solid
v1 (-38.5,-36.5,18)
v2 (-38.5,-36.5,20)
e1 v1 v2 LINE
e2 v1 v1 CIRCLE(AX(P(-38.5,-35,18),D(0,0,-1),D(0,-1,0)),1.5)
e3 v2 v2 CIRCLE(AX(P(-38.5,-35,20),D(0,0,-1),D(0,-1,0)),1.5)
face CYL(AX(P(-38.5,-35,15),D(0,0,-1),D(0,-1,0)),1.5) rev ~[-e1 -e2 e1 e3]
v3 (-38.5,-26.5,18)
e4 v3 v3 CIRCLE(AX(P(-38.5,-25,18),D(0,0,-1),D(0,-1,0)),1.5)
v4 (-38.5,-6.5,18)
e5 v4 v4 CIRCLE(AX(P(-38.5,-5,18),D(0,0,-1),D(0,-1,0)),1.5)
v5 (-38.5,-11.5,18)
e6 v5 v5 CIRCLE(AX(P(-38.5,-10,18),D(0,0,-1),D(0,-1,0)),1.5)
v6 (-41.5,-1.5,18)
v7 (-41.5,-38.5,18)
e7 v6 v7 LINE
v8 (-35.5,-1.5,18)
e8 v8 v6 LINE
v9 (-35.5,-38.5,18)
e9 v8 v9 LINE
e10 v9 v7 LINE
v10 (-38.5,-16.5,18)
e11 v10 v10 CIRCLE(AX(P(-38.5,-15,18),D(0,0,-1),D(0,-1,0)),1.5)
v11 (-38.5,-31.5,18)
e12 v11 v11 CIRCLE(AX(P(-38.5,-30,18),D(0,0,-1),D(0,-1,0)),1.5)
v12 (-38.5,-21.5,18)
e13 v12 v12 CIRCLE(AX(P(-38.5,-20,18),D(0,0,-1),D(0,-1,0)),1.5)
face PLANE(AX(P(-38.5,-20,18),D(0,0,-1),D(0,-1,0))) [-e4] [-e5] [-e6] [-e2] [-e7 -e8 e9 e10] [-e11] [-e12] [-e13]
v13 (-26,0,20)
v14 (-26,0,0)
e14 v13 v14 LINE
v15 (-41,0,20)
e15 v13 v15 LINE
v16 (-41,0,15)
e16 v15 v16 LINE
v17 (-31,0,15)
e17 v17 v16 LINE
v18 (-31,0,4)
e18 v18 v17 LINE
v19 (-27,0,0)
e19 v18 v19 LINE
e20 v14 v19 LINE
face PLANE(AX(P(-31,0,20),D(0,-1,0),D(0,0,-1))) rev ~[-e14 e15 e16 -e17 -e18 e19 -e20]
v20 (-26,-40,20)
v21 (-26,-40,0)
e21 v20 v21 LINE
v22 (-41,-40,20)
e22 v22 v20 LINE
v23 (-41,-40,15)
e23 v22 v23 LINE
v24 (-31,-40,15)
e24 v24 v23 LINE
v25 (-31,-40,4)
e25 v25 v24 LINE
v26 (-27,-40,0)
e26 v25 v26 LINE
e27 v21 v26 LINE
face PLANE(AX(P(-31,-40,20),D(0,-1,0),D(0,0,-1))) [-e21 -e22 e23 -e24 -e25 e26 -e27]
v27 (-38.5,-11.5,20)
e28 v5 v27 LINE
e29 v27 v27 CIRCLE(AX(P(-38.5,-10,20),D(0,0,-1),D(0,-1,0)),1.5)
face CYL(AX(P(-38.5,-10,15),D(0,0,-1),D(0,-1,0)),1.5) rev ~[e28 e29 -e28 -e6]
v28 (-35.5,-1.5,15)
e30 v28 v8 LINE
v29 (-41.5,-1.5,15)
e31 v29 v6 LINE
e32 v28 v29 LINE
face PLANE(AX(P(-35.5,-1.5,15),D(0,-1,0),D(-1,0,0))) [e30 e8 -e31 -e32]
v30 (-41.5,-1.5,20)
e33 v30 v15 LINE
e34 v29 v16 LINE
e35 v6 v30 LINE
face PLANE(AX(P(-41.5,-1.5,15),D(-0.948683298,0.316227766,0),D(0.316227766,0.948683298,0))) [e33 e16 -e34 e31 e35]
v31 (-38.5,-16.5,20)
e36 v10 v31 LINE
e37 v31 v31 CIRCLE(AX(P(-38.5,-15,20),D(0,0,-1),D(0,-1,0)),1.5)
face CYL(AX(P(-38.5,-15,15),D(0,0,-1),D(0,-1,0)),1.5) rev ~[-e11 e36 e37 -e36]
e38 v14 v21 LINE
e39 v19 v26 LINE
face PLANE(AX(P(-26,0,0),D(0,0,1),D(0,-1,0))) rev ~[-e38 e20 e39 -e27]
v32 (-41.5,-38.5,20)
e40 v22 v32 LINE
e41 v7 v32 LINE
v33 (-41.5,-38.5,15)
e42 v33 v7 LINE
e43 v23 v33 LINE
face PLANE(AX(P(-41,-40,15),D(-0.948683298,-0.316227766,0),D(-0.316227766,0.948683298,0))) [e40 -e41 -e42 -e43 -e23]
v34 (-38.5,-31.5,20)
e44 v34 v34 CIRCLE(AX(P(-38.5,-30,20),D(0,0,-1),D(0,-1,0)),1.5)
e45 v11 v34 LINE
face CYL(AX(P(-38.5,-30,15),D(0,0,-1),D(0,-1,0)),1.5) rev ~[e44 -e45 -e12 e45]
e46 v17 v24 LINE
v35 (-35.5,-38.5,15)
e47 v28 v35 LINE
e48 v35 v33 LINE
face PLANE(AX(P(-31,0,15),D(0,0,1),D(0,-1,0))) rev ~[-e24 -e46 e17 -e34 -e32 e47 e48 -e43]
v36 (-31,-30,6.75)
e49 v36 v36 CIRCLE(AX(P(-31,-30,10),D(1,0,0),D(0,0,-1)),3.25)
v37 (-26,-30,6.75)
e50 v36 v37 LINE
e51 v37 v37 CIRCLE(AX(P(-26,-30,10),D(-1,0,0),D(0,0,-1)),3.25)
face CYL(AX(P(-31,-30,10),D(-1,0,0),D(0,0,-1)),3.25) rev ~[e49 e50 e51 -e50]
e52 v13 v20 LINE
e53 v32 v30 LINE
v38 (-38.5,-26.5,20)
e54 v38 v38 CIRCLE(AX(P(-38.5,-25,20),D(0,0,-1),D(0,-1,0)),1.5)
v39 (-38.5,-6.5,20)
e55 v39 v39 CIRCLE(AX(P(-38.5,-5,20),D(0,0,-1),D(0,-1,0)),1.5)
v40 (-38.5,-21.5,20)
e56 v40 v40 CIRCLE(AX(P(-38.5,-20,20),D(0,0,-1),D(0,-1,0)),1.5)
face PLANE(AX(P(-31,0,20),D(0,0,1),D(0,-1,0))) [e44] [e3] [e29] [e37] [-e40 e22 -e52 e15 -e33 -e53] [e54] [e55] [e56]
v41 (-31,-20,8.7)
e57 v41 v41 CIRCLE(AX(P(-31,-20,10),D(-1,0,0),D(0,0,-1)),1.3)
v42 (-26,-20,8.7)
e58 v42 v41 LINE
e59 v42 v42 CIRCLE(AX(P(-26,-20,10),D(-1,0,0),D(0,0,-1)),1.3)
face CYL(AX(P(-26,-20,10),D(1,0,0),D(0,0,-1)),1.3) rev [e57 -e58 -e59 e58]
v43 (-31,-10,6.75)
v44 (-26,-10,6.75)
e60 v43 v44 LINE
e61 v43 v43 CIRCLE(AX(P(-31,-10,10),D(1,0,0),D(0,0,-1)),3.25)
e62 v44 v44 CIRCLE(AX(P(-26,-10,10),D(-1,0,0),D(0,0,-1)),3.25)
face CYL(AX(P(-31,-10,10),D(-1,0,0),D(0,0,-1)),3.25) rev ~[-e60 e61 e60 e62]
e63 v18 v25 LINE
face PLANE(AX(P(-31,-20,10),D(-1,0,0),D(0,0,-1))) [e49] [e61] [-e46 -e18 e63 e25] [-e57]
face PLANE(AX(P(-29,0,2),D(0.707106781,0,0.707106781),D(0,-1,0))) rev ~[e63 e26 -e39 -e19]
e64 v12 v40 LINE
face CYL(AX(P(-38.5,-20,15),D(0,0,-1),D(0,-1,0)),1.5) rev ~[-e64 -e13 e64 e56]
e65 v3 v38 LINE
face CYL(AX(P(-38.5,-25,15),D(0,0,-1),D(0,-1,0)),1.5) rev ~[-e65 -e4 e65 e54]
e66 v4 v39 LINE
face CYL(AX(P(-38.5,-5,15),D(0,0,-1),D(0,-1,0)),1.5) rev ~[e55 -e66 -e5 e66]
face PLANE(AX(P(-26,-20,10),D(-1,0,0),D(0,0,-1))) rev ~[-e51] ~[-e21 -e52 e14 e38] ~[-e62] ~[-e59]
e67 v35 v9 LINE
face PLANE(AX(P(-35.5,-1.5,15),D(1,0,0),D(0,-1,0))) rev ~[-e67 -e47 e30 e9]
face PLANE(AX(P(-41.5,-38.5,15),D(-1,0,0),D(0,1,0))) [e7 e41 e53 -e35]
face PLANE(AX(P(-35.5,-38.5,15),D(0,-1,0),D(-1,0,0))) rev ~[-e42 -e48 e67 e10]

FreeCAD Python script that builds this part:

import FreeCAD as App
import Part
import Sketcher
from FreeCAD import Vector


def edges_at(feature, points):
    """Names of the edges that pass closest to the given points."""
    edges = feature.Shape.Edges
    near = lambda p: min(range(len(edges)), key=lambda i: edges[i].distToShape(Part.Vertex(*p))[0])
    return sorted({f"Edge{near(p) + 1}" for p in points})


def add_polygon(sketch, points):
    """Adds a closed chain of lines whose ends are joined by coincident constraints."""
    first, n = sketch.GeometryCount, len(points)
    for a, b in zip(points, points[1:] + points[:1]):
        sketch.addGeometry(Part.LineSegment(App.Vector(*a, 0), App.Vector(*b, 0)), False)
    for i in range(n):
        sketch.addConstraint(Sketcher.Constraint("Coincident", first + i, 2, first + (i + 1) % n, 1))

doc = App.newDocument("Part")
params = doc.addObject("Spreadsheet::Sheet", "Params")
for row, (alias, value) in enumerate([
    ("sketch1_diameter", "5.5 mm"),
    ("sketch1_diameter2", "2.6 mm"),
    ("sketch1_width", "40 mm"),
    ("sketch1_height", "20 mm"),
    ("pad1_length", "5 mm"),
    ("sketch2_width", "40 mm"),
    ("sketch2_height", "5 mm"),
    ("pad2_length", "15 mm"),
    ("sketch3_diameter", "3 mm"),
    ("sketch4_width", "6 mm"),
    ("sketch4_height", "37 mm"),
    ("pocket2_length", "3 mm"),
    ("chamfer_size", "2 mm"),
    ("chamfer2_size", "4 mm"),
    ("chamfer3_size", "5 mm"),
    ("sketch5_height", "37 mm"),
    ("sketch5_height2", "30 mm"),
    ("pocket3_length", "5 mm"),
    ("sketch6_diameter", "6.5 mm"),
    ("pocket4_length", "7 mm"),
    ("sketch7_width", "2 mm"),
], start=1):
    params.set(f"A{row}", alias)
    params.set(f"B{row}", "=" + value)
    params.setAlias(f"B{row}", alias)

body = doc.addObject("PartDesign::Body", "Body")

sketch1 = body.newObject("Sketcher::SketchObject", "Sketch")
sketch1.AttachmentSupport = (doc.getObject("YZ_Plane"), [""])
sketch1.MapMode = "FlatFace"
sketch1.AttachmentOffset = App.Placement(Vector(0, 0, -5), App.Rotation())
add_polygon(sketch1, [(-40, 20), (0, 20), (0, 0), (-40, 0)])
sketch1.addGeometry(Part.Circle(Vector(-10, 10, 0), Vector(0, 0, 1), 2.75), False)
sketch1.addGeometry(Part.Circle(Vector(-20, 10, 0), Vector(0, 0, 1), 1.3), False)
sketch1.addGeometry(Part.Circle(Vector(-30, 10, 0), Vector(0, 0, 1), 2.75), False)
sketch1.addConstraint(Sketcher.Constraint("Horizontal", 0))
sketch1.addConstraint(Sketcher.Constraint("Vertical", 1))
sketch1.addConstraint(Sketcher.Constraint("Horizontal", 2))
sketch1.addConstraint(Sketcher.Constraint("Vertical", 3))
sketch1.addConstraint(Sketcher.Constraint("Coincident", 1, 2, -1, 1))
sketch1.addConstraint(Sketcher.Constraint("Equal", 4, 6))
sketch1.addConstraint(Sketcher.Constraint("Horizontal", 4, 3, 5, 3))
sketch1.addConstraint(Sketcher.Constraint("Horizontal", 5, 3, 6, 3))
sketch1.addConstraint(Sketcher.Constraint("Diameter", 4, 5.5))
sketch1.addConstraint(Sketcher.Constraint("Diameter", 5, 2.6))
sketch1.addConstraint(Sketcher.Constraint("DistanceX", 0, 1, 0, 2, 40.0))
sketch1.addConstraint(Sketcher.Constraint("DistanceY", 1, 2, 1, 1, 20.0))
sketch1.addConstraint(Sketcher.Constraint("DistanceX", 4, 3, -1, 1, 10.0))
sketch1.addConstraint(Sketcher.Constraint("DistanceY", -1, 1, 4, 3, 10.0))
sketch1.addConstraint(Sketcher.Constraint("DistanceX", 5, 3, -1, 1, 20.0))
sketch1.addConstraint(Sketcher.Constraint("DistanceX", 6, 3, -1, 1, 30.0))
sketch1.setExpression("Constraints[12]", "Params.sketch1_diameter")
sketch1.setExpression("Constraints[13]", "Params.sketch1_diameter2")
sketch1.setExpression("Constraints[14]", "Params.sketch1_width")
sketch1.setExpression("Constraints[15]", "Params.sketch1_height")
pad1 = body.newObject("PartDesign::Pad", "Pad")
pad1.Profile = sketch1
pad1.setExpression("Length", "Params.pad1_length")
pad1.Reversed = True

sketch2 = body.newObject("Sketcher::SketchObject", "Sketch001")
sketch2.AttachmentSupport = (doc.getObject("YZ_Plane"), [""])
sketch2.MapMode = "FlatFace"
sketch2.AttachmentOffset = App.Placement(Vector(0, 0, -10), App.Rotation())
add_polygon(sketch2, [(-40, 20), (0, 20), (0, 15), (-40, 15)])
sketch2.addConstraint(Sketcher.Constraint("Horizontal", 0))
sketch2.addConstraint(Sketcher.Constraint("Vertical", 1))
sketch2.addConstraint(Sketcher.Constraint("Horizontal", 2))
sketch2.addConstraint(Sketcher.Constraint("Vertical", 3))
sketch2.addConstraint(Sketcher.Constraint("PointOnObject", 0, 2, -2))
sketch2.addConstraint(Sketcher.Constraint("DistanceX", 0, 1, 0, 2, 40.0))
sketch2.addConstraint(Sketcher.Constraint("DistanceY", 1, 2, 1, 1, 5.0))
sketch2.addConstraint(Sketcher.Constraint("DistanceY", -1, 1, 0, 2, 20.0))
sketch2.setExpression("Constraints[9]", "Params.sketch2_width")
sketch2.setExpression("Constraints[10]", "Params.sketch2_height")
pad2 = body.newObject("PartDesign::Pad", "Pad001")
pad2.Profile = sketch2
pad2.setExpression("Length", "Params.pad2_length")
pad2.Reversed = True

sketch3 = body.newObject("Sketcher::SketchObject", "Sketch002")
sketch3.AttachmentSupport = (doc.getObject("XY_Plane"), [""])
sketch3.MapMode = "FlatFace"
sketch3.AttachmentOffset = App.Placement(Vector(0, 0, 15), App.Rotation())
sketch3.addGeometry(Part.Circle(Vector(-17.5, -5, 0), Vector(0, 0, 1), 1.5), False)
sketch3.addGeometry(Part.Circle(Vector(-17.5, -10, 0), Vector(0, 0, 1), 1.5), False)
sketch3.addGeometry(Part.Circle(Vector(-17.5, -15, 0), Vector(0, 0, 1), 1.5), False)
sketch3.addGeometry(Part.Circle(Vector(-17.5, -20, 0), Vector(0, 0, 1), 1.5), False)
sketch3.addGeometry(Part.Circle(Vector(-17.5, -25, 0), Vector(0, 0, 1), 1.5), False)
sketch3.addGeometry(Part.Circle(Vector(-17.5, -30, 0), Vector(0, 0, 1), 1.5), False)
sketch3.addGeometry(Part.Circle(Vector(-17.5, -35, 0), Vector(0, 0, 1), 1.5), False)
sketch3.addConstraint(Sketcher.Constraint("Equal", 0, 1))
sketch3.addConstraint(Sketcher.Constraint("Equal", 1, 2))
sketch3.addConstraint(Sketcher.Constraint("Equal", 2, 3))
sketch3.addConstraint(Sketcher.Constraint("Equal", 3, 4))
sketch3.addConstraint(Sketcher.Constraint("Equal", 4, 5))
sketch3.addConstraint(Sketcher.Constraint("Equal", 5, 6))
sketch3.addConstraint(Sketcher.Constraint("Vertical", 0, 3, 1, 3))
sketch3.addConstraint(Sketcher.Constraint("Vertical", 1, 3, 2, 3))
sketch3.addConstraint(Sketcher.Constraint("Vertical", 2, 3, 3, 3))
sketch3.addConstraint(Sketcher.Constraint("Vertical", 3, 3, 4, 3))
sketch3.addConstraint(Sketcher.Constraint("Vertical", 4, 3, 5, 3))
sketch3.addConstraint(Sketcher.Constraint("Vertical", 5, 3, 6, 3))
sketch3.addConstraint(Sketcher.Constraint("Diameter", 0, 3.0))
sketch3.addConstraint(Sketcher.Constraint("DistanceY", 0, 3, -1, 1, 5.0))
sketch3.addConstraint(Sketcher.Constraint("DistanceY", 1, 3, -1, 1, 10.0))
sketch3.addConstraint(Sketcher.Constraint("DistanceY", 2, 3, -1, 1, 15.0))
sketch3.addConstraint(Sketcher.Constraint("DistanceY", 3, 3, -1, 1, 20.0))
sketch3.addConstraint(Sketcher.Constraint("DistanceY", 4, 3, -1, 1, 25.0))
sketch3.addConstraint(Sketcher.Constraint("DistanceY", 5, 3, -1, 1, 30.0))
sketch3.addConstraint(Sketcher.Constraint("DistanceY", 6, 3, -1, 1, 35.0))
sketch3.addConstraint(Sketcher.Constraint("DistanceX", 0, 3, -1, 1, 17.5))
sketch3.setExpression("Constraints[12]", "Params.sketch3_diameter")
pocket1 = body.newObject("PartDesign::Pocket", "Pocket")
pocket1.Profile = sketch3
pocket1.Type = "ThroughAll"
pocket1.Reversed = True

sketch4 = body.newObject("Sketcher::SketchObject", "Sketch003")
sketch4.AttachmentSupport = (doc.getObject("XY_Plane"), [""])
sketch4.MapMode = "FlatFace"
sketch4.AttachmentOffset = App.Placement(Vector(0, 0, 15), App.Rotation())
add_polygon(sketch4, [(-20.5, -1.5), (-14.5, -1.5), (-14.5, -38.5), (-20.5, -38.5)])
sketch4.addConstraint(Sketcher.Constraint("Horizontal", 0))
sketch4.addConstraint(Sketcher.Constraint("Vertical", 1))
sketch4.addConstraint(Sketcher.Constraint("Horizontal", 2))
sketch4.addConstraint(Sketcher.Constraint("Vertical", 3))
sketch4.addConstraint(Sketcher.Constraint("DistanceX", 0, 1, 0, 2, 6.0))
sketch4.addConstraint(Sketcher.Constraint("DistanceY", 1, 2, 1, 1, 37.0))
sketch4.addConstraint(Sketcher.Constraint("DistanceX", 0, 2, -1, 1, 14.5))
sketch4.addConstraint(Sketcher.Constraint("DistanceY", 0, 2, -1, 1, 1.5))
sketch4.setExpression("Constraints[8]", "Params.sketch4_width")
sketch4.setExpression("Constraints[9]", "Params.sketch4_height")
pocket2 = body.newObject("PartDesign::Pocket", "Pocket001")
pocket2.Profile = sketch4
pocket2.setExpression("Length", "Params.pocket2_length")
pocket2.Reversed = True
doc.recompute()

chamfer = body.newObject("PartDesign::Chamfer", "Chamfer")
chamfer.Base = (pocket2, edges_at(pocket2, [(-10, -20, 15)]))
chamfer.setExpression("Size", "Params.chamfer_size")
doc.recompute()

chamfer2 = body.newObject("PartDesign::Chamfer", "Chamfer001")
chamfer2.Base = (chamfer, edges_at(chamfer, [(-10, -20, 0)]))
chamfer2.setExpression("Size", "Params.chamfer2_size")
doc.recompute()

chamfer3 = body.newObject("PartDesign::Chamfer", "Chamfer002")
chamfer3.Base = (chamfer2, edges_at(chamfer2, [(-25, 0, 17.5), (-25, -40, 17.5)]))
chamfer3.setExpression("Size", "Params.chamfer3_size")

sketch5 = body.newObject("Sketcher::SketchObject", "Sketch004")
sketch5.AttachmentSupport = (doc.getObject("XY_Plane"), [""])
sketch5.MapMode = "FlatFace"
sketch5.AttachmentOffset = App.Placement(Vector(0, 0, 15), App.Rotation())
add_polygon(sketch5, [(-25, -5), (-20, 0), (-20.5, -1.5), (-20.5, -38.5), (-20, -40), (-25, -35)])
sketch5.addConstraint(Sketcher.Constraint("Vertical", 2))
sketch5.addConstraint(Sketcher.Constraint("Vertical", 5))
sketch5.addConstraint(Sketcher.Constraint("PointOnObject", 0, 2, -1))
sketch5.addConstraint(Sketcher.Constraint("Perpendicular", 0, 4))
sketch5.addConstraint(Sketcher.Constraint("Vertical", 0, 2, 3, 2))
sketch5.addConstraint(Sketcher.Constraint("Equal", 1, 3))
sketch5.addConstraint(Sketcher.Constraint("Equal", 0, 4))
sketch5.addConstraint(Sketcher.Constraint("DistanceY", 2, 2, 2, 1, 37.0))
sketch5.addConstraint(Sketcher.Constraint("DistanceY", 5, 1, 5, 2, 30.0))
sketch5.addConstraint(Sketcher.Constraint("DistanceX", 0, 2, -1, 1, 20.0))
sketch5.addConstraint(Sketcher.Constraint("DistanceY", 3, 2, -1, 1, 40.0))
sketch5.addConstraint(Sketcher.Constraint("DistanceX", 1, 2, -1, 1, 20.5))
sketch5.setExpression("Constraints[13]", "Params.sketch5_height")
sketch5.setExpression("Constraints[14]", "Params.sketch5_height2")
pocket3 = body.newObject("PartDesign::Pocket", "Pocket002")
pocket3.Profile = sketch5
pocket3.setExpression("Length", "Params.pocket3_length")
pocket3.Reversed = True

sketch6 = body.newObject("Sketcher::SketchObject", "Sketch005")
sketch6.AttachmentSupport = (doc.getObject("YZ_Plane"), [""])
sketch6.MapMode = "FlatFace"
sketch6.AttachmentOffset = App.Placement(Vector(0, 0, -10), App.Rotation())
sketch6.addGeometry(Part.Circle(Vector(-30, 10, 0), Vector(0, 0, 1), 3.25), False)
sketch6.addGeometry(Part.Circle(Vector(-10, 10, 0), Vector(0, 0, 1), 3.25), False)
sketch6.addConstraint(Sketcher.Constraint("Equal", 0, 1))
sketch6.addConstraint(Sketcher.Constraint("Horizontal", 0, 3, 1, 3))
sketch6.addConstraint(Sketcher.Constraint("Diameter", 0, 6.5))
sketch6.addConstraint(Sketcher.Constraint("DistanceX", 0, 3, -1, 1, 30.0))
sketch6.addConstraint(Sketcher.Constraint("DistanceY", -1, 1, 0, 3, 10.0))
sketch6.addConstraint(Sketcher.Constraint("DistanceX", 1, 3, -1, 1, 10.0))
sketch6.setExpression("Constraints[2]", "Params.sketch6_diameter")
pocket4 = body.newObject("PartDesign::Pocket", "Pocket003")
pocket4.Profile = sketch6
pocket4.setExpression("Length", "Params.pocket4_length")
pocket4.Reversed = True

sketch7 = body.newObject("Sketcher::SketchObject", "Sketch006")
sketch7.AttachmentSupport = (doc.getObject("XZ_Plane"), [""])
sketch7.MapMode = "FlatFace"
add_polygon(sketch7, [(-12, 15), (-10, 15), (-10, 13), (-12, 13)])
sketch7.addConstraint(Sketcher.Constraint("Horizontal", 0))
sketch7.addConstraint(Sketcher.Constraint("Vertical", 1))
sketch7.addConstraint(Sketcher.Constraint("Horizontal", 2))
sketch7.addConstraint(Sketcher.Constraint("Vertical", 3))
sketch7.addConstraint(Sketcher.Constraint("Equal", 2, 1))
sketch7.addConstraint(Sketcher.Constraint("DistanceX", 0, 1, 0, 2, 2.0))
sketch7.addConstraint(Sketcher.Constraint("DistanceX", 0, 2, -1, 1, 10.0))
sketch7.addConstraint(Sketcher.Constraint("DistanceY", -1, 1, 0, 2, 15.0))
sketch7.setExpression("Constraints[9]", "Params.sketch7_width")
pocket5 = body.newObject("PartDesign::Pocket", "Pocket004")
pocket5.Profile = sketch7
pocket5.Type = "ThroughAll"
pocket5.Reversed = True
body2 = doc.addObject("PartDesign::Body", "Body001")
doc.recompute()

body.Placement = App.Placement(Vector(-21, 0, 0), App.Rotation(Vector(0, 0, 1), 0))
boolean = body2.newObject("PartDesign::Boolean", "Boolean")
boolean.Type = "Fuse"
boolean.addObjects([body])

doc.recompute()
